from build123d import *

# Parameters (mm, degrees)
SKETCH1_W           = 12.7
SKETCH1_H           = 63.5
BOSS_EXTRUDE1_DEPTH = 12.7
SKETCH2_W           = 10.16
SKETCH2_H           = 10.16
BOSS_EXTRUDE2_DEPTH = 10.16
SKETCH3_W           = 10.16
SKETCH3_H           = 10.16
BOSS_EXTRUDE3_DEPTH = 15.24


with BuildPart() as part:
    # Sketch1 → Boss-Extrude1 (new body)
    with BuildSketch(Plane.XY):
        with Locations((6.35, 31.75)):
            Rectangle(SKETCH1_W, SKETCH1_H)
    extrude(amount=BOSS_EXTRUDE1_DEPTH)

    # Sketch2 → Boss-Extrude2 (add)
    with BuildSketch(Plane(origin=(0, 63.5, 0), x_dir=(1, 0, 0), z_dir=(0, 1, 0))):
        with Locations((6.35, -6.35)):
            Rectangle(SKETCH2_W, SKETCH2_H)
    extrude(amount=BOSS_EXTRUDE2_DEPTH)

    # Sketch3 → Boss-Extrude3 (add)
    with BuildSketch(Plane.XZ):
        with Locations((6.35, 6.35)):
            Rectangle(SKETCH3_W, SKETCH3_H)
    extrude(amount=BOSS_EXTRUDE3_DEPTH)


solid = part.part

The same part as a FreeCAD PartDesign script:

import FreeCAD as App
import Part
import Sketcher

V = App.Vector
Q = App.Units.Quantity

doc = App.newDocument("Part")
body = doc.addObject("PartDesign::Body", "Body")

sketch1 = body.newObject("Sketcher::SketchObject", "Sketch")
sketch1.AttachmentSupport = (doc.getObject("XY_Plane"), [""])
sketch1.MapMode = "FlatFace"
sketch1.addGeometry([
    Part.LineSegment(V(0, 64, 0), V(0, 0, 0)),
    Part.LineSegment(V(0, 0, 0), V(13, 0, 0)),
    Part.LineSegment(V(13, 0, 0), V(13, 64, 0)),
    Part.LineSegment(V(13, 64, 0), V(0, 64, 0)),
], False)
sketch1.addConstraint([
    Sketcher.Constraint("Coincident", 0, 2, 1, 1),
    Sketcher.Constraint("Coincident", 1, 2, 2, 1),
    Sketcher.Constraint("Coincident", 2, 2, 3, 1),
    Sketcher.Constraint("Coincident", 3, 2, 0, 1),
    Sketcher.Constraint("Vertical", 0),
    Sketcher.Constraint("Horizontal", 1),
    Sketcher.Constraint("Vertical", 2),
    Sketcher.Constraint("Horizontal", 3),
    Sketcher.Constraint("Coincident", 0, 2, -1, 1),
    Sketcher.Constraint("DistanceX", 1, 1, 1, 2, Q("0.5 in")),
    Sketcher.Constraint("DistanceY", 0, 2, 0, 1, Q("2.5 in")),
])
pad1 = body.newObject("PartDesign::Pad", "Pad")
pad1.Profile = sketch1
pad1.Length = Q("0.5 in")

sketch2 = body.newObject("Sketcher::SketchObject", "Sketch001")
sketch2.AttachmentSupport = (doc.getObject("XZ_Plane"), [""])
sketch2.MapMode = "FlatFace"
sketch2.AttachmentOffset = App.Placement(V(0, 0, -2.5 * 25.4), App.Rotation())
sketch2.addGeometry([
    Part.LineSegment(V(1, 1, 0), V(1, 11, 0)),
    Part.LineSegment(V(1, 11, 0), V(11, 11, 0)),
    Part.LineSegment(V(11, 11, 0), V(11, 1, 0)),
    Part.LineSegment(V(11, 1, 0), V(1, 1, 0)),
], False)
sketch2.addConstraint([
    Sketcher.Constraint("Coincident", 0, 2, 1, 1),
    Sketcher.Constraint("Coincident", 1, 2, 2, 1),
    Sketcher.Constraint("Coincident", 2, 2, 3, 1),
    Sketcher.Constraint("Coincident", 3, 2, 0, 1),
    Sketcher.Constraint("Vertical", 0),
    Sketcher.Constraint("Horizontal", 1),
    Sketcher.Constraint("Vertical", 2),
    Sketcher.Constraint("Horizontal", 3),
    Sketcher.Constraint("Equal", 3, 0),
    Sketcher.Constraint("DistanceX", 1, 1, 1, 2, Q("0.4 in")),
    Sketcher.Constraint("DistanceX", -1, 1, 0, 2, Q("0.05 in")),
    Sketcher.Constraint("DistanceY", -1, 1, 0, 2, Q("0.45 in")),
])
pad2 = body.newObject("PartDesign::Pad", "Pad001")
pad2.Profile = sketch2
pad2.Length = Q("0.4 in")
pad2.Reversed = True

sketch3 = body.newObject("Sketcher::SketchObject", "Sketch002")
sketch3.AttachmentSupport = (doc.getObject("XZ_Plane"), [""])
sketch3.MapMode = "FlatFace"
sketch3.addGeometry([
    Part.LineSegment(V(1, 11, 0), V(1, 1, 0)),
    Part.LineSegment(V(1, 1, 0), V(11, 1, 0)),
    Part.LineSegment(V(11, 1, 0), V(11, 11, 0)),
    Part.LineSegment(V(11, 11, 0), V(1, 11, 0)),
], False)
sketch3.addConstraint([
    Sketcher.Constraint("Coincident", 0, 2, 1, 1),
    Sketcher.Constraint("Coincident", 1, 2, 2, 1),
    Sketcher.Constraint("Coincident", 2, 2, 3, 1),
    Sketcher.Constraint("Coincident", 3, 2, 0, 1),
    Sketcher.Constraint("Vertical", 0),
    Sketcher.Constraint("Horizontal", 1),
    Sketcher.Constraint("Vertical", 2),
    Sketcher.Constraint("Horizontal", 3),
    Sketcher.Constraint("Equal", 3, 0),
    Sketcher.Constraint("DistanceX", 1, 1, 1, 2, Q("0.4 in")),
    Sketcher.Constraint("DistanceX", -1, 1, 0, 2, Q("0.05 in")),
    Sketcher.Constraint("DistanceY", -1, 1, 0, 2, Q("0.05 in")),
])
pad3 = body.newObject("PartDesign::Pad", "Pad002")
pad3.Profile = sketch3
pad3.Length = Q("0.6 in")

doc.recompute()
